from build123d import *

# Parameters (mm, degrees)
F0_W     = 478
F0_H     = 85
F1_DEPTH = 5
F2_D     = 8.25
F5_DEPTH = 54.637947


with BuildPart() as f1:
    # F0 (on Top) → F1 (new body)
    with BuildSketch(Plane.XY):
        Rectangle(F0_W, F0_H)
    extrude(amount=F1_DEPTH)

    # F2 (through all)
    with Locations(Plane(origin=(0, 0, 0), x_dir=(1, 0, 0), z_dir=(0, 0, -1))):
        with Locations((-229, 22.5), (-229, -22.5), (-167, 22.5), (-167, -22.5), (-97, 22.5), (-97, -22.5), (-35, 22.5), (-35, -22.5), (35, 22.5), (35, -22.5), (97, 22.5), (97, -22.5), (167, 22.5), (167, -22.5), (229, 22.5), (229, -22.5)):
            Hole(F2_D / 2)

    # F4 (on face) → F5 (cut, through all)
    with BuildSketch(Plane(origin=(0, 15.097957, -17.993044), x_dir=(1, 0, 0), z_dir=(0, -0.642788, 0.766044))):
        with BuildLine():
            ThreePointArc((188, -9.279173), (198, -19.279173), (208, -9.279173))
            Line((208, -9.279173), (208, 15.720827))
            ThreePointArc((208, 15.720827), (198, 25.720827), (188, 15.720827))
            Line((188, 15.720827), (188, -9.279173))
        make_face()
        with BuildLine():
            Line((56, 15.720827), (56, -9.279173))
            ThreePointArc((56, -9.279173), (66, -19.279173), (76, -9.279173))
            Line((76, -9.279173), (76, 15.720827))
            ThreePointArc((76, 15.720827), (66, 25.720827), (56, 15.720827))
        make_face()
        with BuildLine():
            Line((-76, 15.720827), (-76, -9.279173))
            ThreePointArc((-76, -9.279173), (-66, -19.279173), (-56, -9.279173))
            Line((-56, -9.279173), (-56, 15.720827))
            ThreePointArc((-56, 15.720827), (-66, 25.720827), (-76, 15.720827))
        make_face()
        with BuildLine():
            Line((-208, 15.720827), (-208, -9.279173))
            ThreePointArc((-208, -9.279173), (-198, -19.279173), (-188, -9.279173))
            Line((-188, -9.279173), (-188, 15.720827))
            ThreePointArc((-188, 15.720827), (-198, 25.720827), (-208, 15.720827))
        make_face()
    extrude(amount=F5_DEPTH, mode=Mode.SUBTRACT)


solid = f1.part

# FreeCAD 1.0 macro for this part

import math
import FreeCAD as App
import Part
import Sketcher
Q = App.Units.Quantity


def add_polygon(sketch, points):
    """Adds a closed chain of lines whose ends are joined by coincident constraints."""
    first, n = sketch.GeometryCount, len(points)
    for a, b in zip(points, points[1:] + points[:1]):
        sketch.addGeometry(Part.LineSegment(App.Vector(*a, 0), App.Vector(*b, 0)), False)
    for i in range(n):
        sketch.addConstraint(Sketcher.Constraint("Coincident", first + i, 2, first + (i + 1) % n, 1))

doc = App.newDocument("Part")
body = doc.addObject("PartDesign::Body", "Body")

# Sketch on XY plane
sketch1 = body.newObject("Sketcher::SketchObject", "Sketch")
sketch1.AttachmentSupport = (doc.getObject("XY_Plane"), [""])
sketch1.MapMode = "FlatFace"
add_polygon(sketch1, [(-239, 42), (-239, -42), (239, -42), (239, 42)])  # lines 0-3
sketch1.addConstraint([
    Sketcher.Constraint("Vertical", 0),
    Sketcher.Constraint("Horizontal", 1),
    Sketcher.Constraint("Vertical", 2),
    Sketcher.Constraint("Horizontal", 3),
    Sketcher.Constraint("Symmetric", 0, 2, 2, 2, -1, 1),
    Sketcher.Constraint("DistanceX", 1, 1, 1, 2, Q("478 mm")),
    Sketcher.Constraint("DistanceY", 0, 2, 0, 1, Q("85 mm")),
])
pad1 = body.newObject("PartDesign::Pad", "Pad")
pad1.Profile = sketch1
pad1.Length = 5

# Sketch on XY plane
sketch2 = body.newObject("Sketcher::SketchObject", "Sketch001")
sketch2.AttachmentSupport = (doc.getObject("XY_Plane"), [""])
sketch2.MapMode = "FlatFace"
sketch2.addGeometry([
    Part.Circle(App.Vector(-229, -22.5, 0), App.Vector(0, 0, 1), 4.1),  # 0
    Part.Circle(App.Vector(-229, 22.5, 0), App.Vector(0, 0, 1), 4.1),  # 1
    Part.Circle(App.Vector(-167, -22.5, 0), App.Vector(0, 0, 1), 4.1),  # 2
    Part.Circle(App.Vector(-167, 22.5, 0), App.Vector(0, 0, 1), 4.1),  # 3
    Part.Circle(App.Vector(-97, -22.5, 0), App.Vector(0, 0, 1), 4.1),  # 4
    Part.Circle(App.Vector(-97, 22.5, 0), App.Vector(0, 0, 1), 4.1),  # 5
    Part.Circle(App.Vector(-35, -22.5, 0), App.Vector(0, 0, 1), 4.1),  # 6
    Part.Circle(App.Vector(-35, 22.5, 0), App.Vector(0, 0, 1), 4.1),  # 7
    Part.Circle(App.Vector(35, -22.5, 0), App.Vector(0, 0, 1), 4.1),  # 8
    Part.Circle(App.Vector(35, 22.5, 0), App.Vector(0, 0, 1), 4.1),  # 9
    Part.Circle(App.Vector(97, -22.5, 0), App.Vector(0, 0, 1), 4.1),  # 10
    Part.Circle(App.Vector(97, 22.5, 0), App.Vector(0, 0, 1), 4.1),  # 11
    Part.Circle(App.Vector(167, -22.5, 0), App.Vector(0, 0, 1), 4.1),  # 12
    Part.Circle(App.Vector(167, 22.5, 0), App.Vector(0, 0, 1), 4.1),  # 13
    Part.Circle(App.Vector(229, -22.5, 0), App.Vector(0, 0, 1), 4.1),  # 14
    Part.Circle(App.Vector(229, 22.5, 0), App.Vector(0, 0, 1), 4.1),  # 15
], False)
sketch2.addConstraint([
    Sketcher.Constraint("Equal", 0, 1),
    Sketcher.Constraint("Equal", 1, 2),
    Sketcher.Constraint("Equal", 2, 3),
    Sketcher.Constraint("Equal", 3, 4),
    Sketcher.Constraint("Equal", 4, 5),
    Sketcher.Constraint("Equal", 5, 6),
    Sketcher.Constraint("Equal", 6, 7),
    Sketcher.Constraint("Equal", 7, 8),
    Sketcher.Constraint("Equal", 8, 9),
    Sketcher.Constraint("Equal", 9, 10),
    Sketcher.Constraint("Equal", 10, 11),
    Sketcher.Constraint("Equal", 11, 12),
    Sketcher.Constraint("Equal", 12, 13),
    Sketcher.Constraint("Equal", 13, 14),
    Sketcher.Constraint("Equal", 14, 15),
    Sketcher.Constraint("Symmetric", 7, 3, 8, 3, -1, 1),
    Sketcher.Constraint("Symmetric", 6, 3, 9, 3, -1, 1),
    Sketcher.Constraint("Symmetric", 5, 3, 10, 3, -1, 1),
    Sketcher.Constraint("Symmetric", 4, 3, 11, 3, -1, 1),
    Sketcher.Constraint("Symmetric", 3, 3, 12, 3, -1, 1),
    Sketcher.Constraint("Symmetric", 2, 3, 13, 3, -1, 1),
    Sketcher.Constraint("Symmetric", 1, 3, 14, 3, -1, 1),
    Sketcher.Constraint("Symmetric", 0, 3, 15, 3, -1, 1),
    Sketcher.Constraint("Symmetric", 6, 3, 8, 3, -2),
    Sketcher.Constraint("Symmetric", 4, 3, 10, 3, -2),
    Sketcher.Constraint("Symmetric", 2, 3, 12, 3, -2),
    Sketcher.Constraint("Symmetric", 0, 3, 14, 3, -2),
    Sketcher.Constraint("Horizontal", 0, 3, 2, 3),
    Sketcher.Constraint("Horizontal", 2, 3, 4, 3),
    Sketcher.Constraint("Horizontal", 4, 3, 6, 3),
    Sketcher.Constraint("Diameter", 0, Q("8.25 mm")),
    Sketcher.Constraint("DistanceX", 0, 3, -1, 1, Q("229 mm")),
    Sketcher.Constraint("DistanceX", 2, 3, -1, 1, Q("167 mm")),
    Sketcher.Constraint("DistanceX", 4, 3, -1, 1, Q("97 mm")),
    Sketcher.Constraint("DistanceX", 6, 3, -1, 1, Q("35 mm")),
    Sketcher.Constraint("DistanceY", 0, 3, 1, 3, Q("45 mm")),
])
doc.recompute()
hole = body.newObject("PartDesign::Hole", "Hole")
hole.Profile = sketch2
hole.ThreadType = "None"
hole.Diameter = 8.25
hole.DepthType = "ThroughAll"
hole.Reversed = True

# Sketch on an angled plane
sketch3 = body.newObject("Sketcher::SketchObject", "Sketch002")
sketch3.Placement = App.Placement(App.Vector(0, 15.097957, -17.993044), App.Rotation(App.Vector(1, 0, 0), App.Vector(0, 0.766044068, 0.642788057), App.Vector(0, -0.642788057, 0.766044068), "ZXY"))
sketch3.addGeometry([
    Part.ArcOfCircle(Part.Circle(App.Vector(198, -9, 0), App.Vector(0, 0, 1), 10), math.radians(180), math.radians(360)),  # 0
    Part.LineSegment(App.Vector(208, -9, 0), App.Vector(208, 16, 0)),  # 1
    Part.ArcOfCircle(Part.Circle(App.Vector(198, 16, 0), App.Vector(0, 0, 1), 10), math.radians(0), math.radians(180)),  # 2
    Part.LineSegment(App.Vector(188, 16, 0), App.Vector(188, -9, 0)),  # 3
    Part.LineSegment(App.Vector(56, 16, 0), App.Vector(56, -9, 0)),  # 4
    Part.ArcOfCircle(Part.Circle(App.Vector(66, -9, 0), App.Vector(0, 0, 1), 10), math.radians(180), math.radians(360)),  # 5
    Part.LineSegment(App.Vector(76, -9, 0), App.Vector(76, 16, 0)),  # 6
    Part.ArcOfCircle(Part.Circle(App.Vector(66, 16, 0), App.Vector(0, 0, 1), 10), math.radians(0), math.radians(180)),  # 7
    Part.LineSegment(App.Vector(-76, 16, 0), App.Vector(-76, -9, 0)),  # 8
    Part.ArcOfCircle(Part.Circle(App.Vector(-66, -9, 0), App.Vector(0, 0, 1), 10), math.radians(180), math.radians(360)),  # 9
    Part.LineSegment(App.Vector(-56, -9, 0), App.Vector(-56, 16, 0)),  # 10
    Part.ArcOfCircle(Part.Circle(App.Vector(-66, 16, 0), App.Vector(0, 0, 1), 10), math.radians(0), math.radians(180)),  # 11
    Part.LineSegment(App.Vector(-208, 16, 0), App.Vector(-208, -9, 0)),  # 12
    Part.ArcOfCircle(Part.Circle(App.Vector(-198, -9, 0), App.Vector(0, 0, 1), 10), math.radians(180), math.radians(360)),  # 13
    Part.LineSegment(App.Vector(-188, -9, 0), App.Vector(-188, 16, 0)),  # 14
    Part.ArcOfCircle(Part.Circle(App.Vector(-198, 16, 0), App.Vector(0, 0, 1), 10), math.radians(0), math.radians(180)),  # 15
], False)
sketch3.addConstraint([
    Sketcher.Constraint("Tangent", 0, 2, 1, 1),
    Sketcher.Constraint("Tangent", 1, 2, 2, 1),
    Sketcher.Constraint("Tangent", 2, 2, 3, 1),
    Sketcher.Constraint("Tangent", 3, 2, 0, 1),
    Sketcher.Constraint("Tangent", 4, 2, 5, 1),
    Sketcher.Constraint("Tangent", 5, 2, 6, 1),
    Sketcher.Constraint("Tangent", 6, 2, 7, 1),
    Sketcher.Constraint("Tangent", 7, 2, 4, 1),
    Sketcher.Constraint("Tangent", 8, 2, 9, 1),
    Sketcher.Constraint("Tangent", 9, 2, 10, 1),
    Sketcher.Constraint("Tangent", 10, 2, 11, 1),
    Sketcher.Constraint("Tangent", 11, 2, 8, 1),
    Sketcher.Constraint("Tangent", 12, 2, 13, 1),
    Sketcher.Constraint("Tangent", 13, 2, 14, 1),
    Sketcher.Constraint("Tangent", 14, 2, 15, 1),
    Sketcher.Constraint("Tangent", 15, 2, 12, 1),
    Sketcher.Constraint("Vertical", 1),
    Sketcher.Constraint("Vertical", 3),
    Sketcher.Constraint("Vertical", 4),
    Sketcher.Constraint("Vertical", 6),
    Sketcher.Constraint("Vertical", 8),
    Sketcher.Constraint("Vertical", 10),
    Sketcher.Constraint("Vertical", 12),
    Sketcher.Constraint("Vertical", 14),
    Sketcher.Constraint("Equal", 2, 5),
    Sketcher.Constraint("Equal", 7, 9),
    Sketcher.Constraint("Equal", 11, 13),
    Sketcher.Constraint("Symmetric", 5, 3, 9, 3, -2),
    Sketcher.Constraint("Symmetric", 0, 3, 13, 3, -2),
    Sketcher.Constraint("Horizontal", 0, 3, 5, 3),
    Sketcher.Constraint("Horizontal", 2, 3, 7, 3),
    Sketcher.Constraint("Horizontal", 7, 3, 11, 3),
    Sketcher.Constraint("Horizontal", 11, 3, 15, 3),
    Sketcher.Constraint("Radius", 0, Q("10 mm")),
    Sketcher.Constraint("DistanceY", 1, 1, 1, 2, Q("25 mm")),
    Sketcher.Constraint("DistanceX", -1, 1, 0, 3, Q("198 mm")),
    Sketcher.Constraint("DistanceX", -1, 1, 5, 3, Q("66 mm")),
    Sketcher.Constraint("DistanceY", 0, 3, -1, 1, Q("9.279173 mm")),
])
pocket1 = body.newObject("PartDesign::Pocket", "Pocket")
pocket1.Profile = sketch3
pocket1.Type = "ThroughAll"
pocket1.Reversed = True

doc.recompute()
